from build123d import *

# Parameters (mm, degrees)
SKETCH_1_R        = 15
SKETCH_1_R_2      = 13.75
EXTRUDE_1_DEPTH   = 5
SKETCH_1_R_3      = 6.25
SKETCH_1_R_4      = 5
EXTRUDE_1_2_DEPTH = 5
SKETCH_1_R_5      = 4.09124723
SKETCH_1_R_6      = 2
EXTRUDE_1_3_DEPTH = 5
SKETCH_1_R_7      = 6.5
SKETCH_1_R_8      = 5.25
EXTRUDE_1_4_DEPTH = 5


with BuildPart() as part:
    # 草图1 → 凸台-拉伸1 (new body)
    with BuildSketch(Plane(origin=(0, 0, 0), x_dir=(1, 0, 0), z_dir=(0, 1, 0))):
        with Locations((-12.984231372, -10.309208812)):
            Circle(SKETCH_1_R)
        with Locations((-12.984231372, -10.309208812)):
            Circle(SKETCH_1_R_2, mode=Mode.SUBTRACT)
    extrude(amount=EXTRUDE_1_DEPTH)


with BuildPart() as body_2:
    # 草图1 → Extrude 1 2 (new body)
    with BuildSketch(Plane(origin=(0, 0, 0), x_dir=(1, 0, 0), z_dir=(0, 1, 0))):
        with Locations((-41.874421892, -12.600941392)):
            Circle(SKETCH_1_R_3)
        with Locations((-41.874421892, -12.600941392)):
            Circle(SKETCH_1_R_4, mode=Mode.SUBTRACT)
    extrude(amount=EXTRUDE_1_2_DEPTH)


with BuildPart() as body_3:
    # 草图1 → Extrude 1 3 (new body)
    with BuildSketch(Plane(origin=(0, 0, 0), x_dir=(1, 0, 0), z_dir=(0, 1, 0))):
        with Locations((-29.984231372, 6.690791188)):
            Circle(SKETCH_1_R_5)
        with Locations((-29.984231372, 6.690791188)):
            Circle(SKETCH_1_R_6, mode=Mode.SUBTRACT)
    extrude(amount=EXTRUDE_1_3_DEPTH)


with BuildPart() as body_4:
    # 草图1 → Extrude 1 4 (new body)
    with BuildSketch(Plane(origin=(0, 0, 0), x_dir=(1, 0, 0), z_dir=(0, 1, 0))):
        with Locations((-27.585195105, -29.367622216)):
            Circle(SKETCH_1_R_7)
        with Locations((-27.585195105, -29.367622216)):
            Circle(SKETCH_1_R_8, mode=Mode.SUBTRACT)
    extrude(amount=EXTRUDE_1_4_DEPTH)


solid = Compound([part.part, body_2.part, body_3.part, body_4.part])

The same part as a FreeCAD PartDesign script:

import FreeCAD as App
import Part
import Sketcher

V = App.Vector
Q = App.Units.Quantity

doc = App.newDocument("Part")
params = doc.addObject("Spreadsheet::Sheet", "Params")
for row, (alias, value) in enumerate([
    ("sketch1_diameter", "30 mm"),
    ("sketch1_diameter2", "27.5 mm"),
    ("pad1_length", "5 mm"),
    ("sketch2_diameter", "10 mm"),
    ("sketch2_diameter2", "12.5 mm"),
    ("pad2_length", "5 mm"),
    ("sketch3_diameter", "4 mm"),
    ("pad3_length", "5 mm"),
    ("sketch4_diameter", "13 mm"),
    ("sketch4_diameter2", "10.5 mm"),
    ("pad4_length", "5 mm"),
], start=1):
    params.set(f"A{row}", alias)
    params.set(f"B{row}", "=" + value)
    params.setAlias(f"B{row}", alias)

body = doc.addObject("PartDesign::Body", "Body")

sketch1 = body.newObject("Sketcher::SketchObject", "Sketch")
sketch1.AttachmentSupport = (doc.getObject("XZ_Plane"), [""])
sketch1.MapMode = "FlatFace"
sketch1.addGeometry([
    Part.Circle(V(-13, 10, 0), V(0, 0, 1), 15),
    Part.Circle(V(-13, 10, 0), V(0, 0, 1), 14),
], False)
sketch1.addConstraint([
    Sketcher.Constraint("Coincident", 1, 3, 0, 3),
    Sketcher.Constraint("Diameter", 0, Q("30 mm")),
    Sketcher.Constraint("Diameter", 1, Q("27.5 mm")),
    Sketcher.Constraint("DistanceX", 0, 3, -1, 1, Q("12.984231 mm")),
    Sketcher.Constraint("DistanceY", -1, 1, 0, 3, Q("10.309209 mm")),
])
sketch1.setExpression("Constraints[1]", "Params.sketch1_diameter")
sketch1.setExpression("Constraints[2]", "Params.sketch1_diameter2")
pad1 = body.newObject("PartDesign::Pad", "Pad")
pad1.Profile = sketch1
pad1.setExpression("Length", "Params.pad1_length")
pad1.Reversed = True
body2 = doc.addObject("PartDesign::Body", "Body001")

sketch2 = body2.newObject("Sketcher::SketchObject", "Sketch001")
sketch2.AttachmentSupport = (doc.getObject("XZ_Plane001"), [""])
sketch2.MapMode = "FlatFace"
sketch2.addGeometry([
    Part.Circle(V(-42, 13, 0), V(0, 0, 1), 6),
    Part.Circle(V(-42, 13, 0), V(0, 0, 1), 5),
], False)
sketch2.addConstraint([
    Sketcher.Constraint("Coincident", 1, 3, 0, 3),
    Sketcher.Constraint("Diameter", 1, Q("10 mm")),
    Sketcher.Constraint("Diameter", 0, Q("12.5 mm")),
    Sketcher.Constraint("DistanceX", 0, 3, -1, 1, Q("41.874422 mm")),
    Sketcher.Constraint("DistanceY", -1, 1, 0, 3, Q("12.600941 mm")),
])
sketch2.setExpression("Constraints[1]", "Params.sketch2_diameter")
sketch2.setExpression("Constraints[2]", "Params.sketch2_diameter2")
pad2 = body2.newObject("PartDesign::Pad", "Pad001")
pad2.Profile = sketch2
pad2.setExpression("Length", "Params.pad2_length")
pad2.Reversed = True
body3 = doc.addObject("PartDesign::Body", "Body002")

sketch3 = body3.newObject("Sketcher::SketchObject", "Sketch002")
sketch3.AttachmentSupport = (doc.getObject("XZ_Plane002"), [""])
sketch3.MapMode = "FlatFace"
sketch3.addGeometry([
    Part.Circle(V(-30, -6.7, 0), V(0, 0, 1), 4.1),
    Part.Circle(V(-30, -6.7, 0), V(0, 0, 1), 2),
], False)
sketch3.addConstraint([
    Sketcher.Constraint("Coincident", 1, 3, 0, 3),
    Sketcher.Constraint("Diameter", 1, Q("4 mm")),
    Sketcher.Constraint("Diameter", 0, Q("8.182494 mm")),
    Sketcher.Constraint("DistanceX", 0, 3, -1, 1, Q("29.984231 mm")),
    Sketcher.Constraint("DistanceY", 0, 3, -1, 1, Q("6.690791 mm")),
])
sketch3.setExpression("Constraints[1]", "Params.sketch3_diameter")
pad3 = body3.newObject("PartDesign::Pad", "Pad002")
pad3.Profile = sketch3
pad3.setExpression("Length", "Params.pad3_length")
pad3.Reversed = True
body4 = doc.addObject("PartDesign::Body", "Body003")

sketch4 = body4.newObject("Sketcher::SketchObject", "Sketch003")
sketch4.AttachmentSupport = (doc.getObject("XZ_Plane003"), [""])
sketch4.MapMode = "FlatFace"
sketch4.addGeometry([
    Part.Circle(V(-28, 29, 0), V(0, 0, 1), 6),
    Part.Circle(V(-28, 29, 0), V(0, 0, 1), 5),
], False)
sketch4.addConstraint([
    Sketcher.Constraint("Coincident", 1, 3, 0, 3),
    Sketcher.Constraint("Diameter", 0, Q("13 mm")),
    Sketcher.Constraint("Diameter", 1, Q("10.5 mm")),
    Sketcher.Constraint("DistanceX", 0, 3, -1, 1, Q("27.585195 mm")),
    Sketcher.Constraint("DistanceY", -1, 1, 0, 3, Q("29.367622 mm")),
])
sketch4.setExpression("Constraints[1]", "Params.sketch4_diameter")
sketch4.setExpression("Constraints[2]", "Params.sketch4_diameter2")
pad4 = body4.newObject("PartDesign::Pad", "Pad003")
pad4.Profile = sketch4
pad4.setExpression("Length", "Params.pad4_length")
pad4.Reversed = True

doc.recompute()
